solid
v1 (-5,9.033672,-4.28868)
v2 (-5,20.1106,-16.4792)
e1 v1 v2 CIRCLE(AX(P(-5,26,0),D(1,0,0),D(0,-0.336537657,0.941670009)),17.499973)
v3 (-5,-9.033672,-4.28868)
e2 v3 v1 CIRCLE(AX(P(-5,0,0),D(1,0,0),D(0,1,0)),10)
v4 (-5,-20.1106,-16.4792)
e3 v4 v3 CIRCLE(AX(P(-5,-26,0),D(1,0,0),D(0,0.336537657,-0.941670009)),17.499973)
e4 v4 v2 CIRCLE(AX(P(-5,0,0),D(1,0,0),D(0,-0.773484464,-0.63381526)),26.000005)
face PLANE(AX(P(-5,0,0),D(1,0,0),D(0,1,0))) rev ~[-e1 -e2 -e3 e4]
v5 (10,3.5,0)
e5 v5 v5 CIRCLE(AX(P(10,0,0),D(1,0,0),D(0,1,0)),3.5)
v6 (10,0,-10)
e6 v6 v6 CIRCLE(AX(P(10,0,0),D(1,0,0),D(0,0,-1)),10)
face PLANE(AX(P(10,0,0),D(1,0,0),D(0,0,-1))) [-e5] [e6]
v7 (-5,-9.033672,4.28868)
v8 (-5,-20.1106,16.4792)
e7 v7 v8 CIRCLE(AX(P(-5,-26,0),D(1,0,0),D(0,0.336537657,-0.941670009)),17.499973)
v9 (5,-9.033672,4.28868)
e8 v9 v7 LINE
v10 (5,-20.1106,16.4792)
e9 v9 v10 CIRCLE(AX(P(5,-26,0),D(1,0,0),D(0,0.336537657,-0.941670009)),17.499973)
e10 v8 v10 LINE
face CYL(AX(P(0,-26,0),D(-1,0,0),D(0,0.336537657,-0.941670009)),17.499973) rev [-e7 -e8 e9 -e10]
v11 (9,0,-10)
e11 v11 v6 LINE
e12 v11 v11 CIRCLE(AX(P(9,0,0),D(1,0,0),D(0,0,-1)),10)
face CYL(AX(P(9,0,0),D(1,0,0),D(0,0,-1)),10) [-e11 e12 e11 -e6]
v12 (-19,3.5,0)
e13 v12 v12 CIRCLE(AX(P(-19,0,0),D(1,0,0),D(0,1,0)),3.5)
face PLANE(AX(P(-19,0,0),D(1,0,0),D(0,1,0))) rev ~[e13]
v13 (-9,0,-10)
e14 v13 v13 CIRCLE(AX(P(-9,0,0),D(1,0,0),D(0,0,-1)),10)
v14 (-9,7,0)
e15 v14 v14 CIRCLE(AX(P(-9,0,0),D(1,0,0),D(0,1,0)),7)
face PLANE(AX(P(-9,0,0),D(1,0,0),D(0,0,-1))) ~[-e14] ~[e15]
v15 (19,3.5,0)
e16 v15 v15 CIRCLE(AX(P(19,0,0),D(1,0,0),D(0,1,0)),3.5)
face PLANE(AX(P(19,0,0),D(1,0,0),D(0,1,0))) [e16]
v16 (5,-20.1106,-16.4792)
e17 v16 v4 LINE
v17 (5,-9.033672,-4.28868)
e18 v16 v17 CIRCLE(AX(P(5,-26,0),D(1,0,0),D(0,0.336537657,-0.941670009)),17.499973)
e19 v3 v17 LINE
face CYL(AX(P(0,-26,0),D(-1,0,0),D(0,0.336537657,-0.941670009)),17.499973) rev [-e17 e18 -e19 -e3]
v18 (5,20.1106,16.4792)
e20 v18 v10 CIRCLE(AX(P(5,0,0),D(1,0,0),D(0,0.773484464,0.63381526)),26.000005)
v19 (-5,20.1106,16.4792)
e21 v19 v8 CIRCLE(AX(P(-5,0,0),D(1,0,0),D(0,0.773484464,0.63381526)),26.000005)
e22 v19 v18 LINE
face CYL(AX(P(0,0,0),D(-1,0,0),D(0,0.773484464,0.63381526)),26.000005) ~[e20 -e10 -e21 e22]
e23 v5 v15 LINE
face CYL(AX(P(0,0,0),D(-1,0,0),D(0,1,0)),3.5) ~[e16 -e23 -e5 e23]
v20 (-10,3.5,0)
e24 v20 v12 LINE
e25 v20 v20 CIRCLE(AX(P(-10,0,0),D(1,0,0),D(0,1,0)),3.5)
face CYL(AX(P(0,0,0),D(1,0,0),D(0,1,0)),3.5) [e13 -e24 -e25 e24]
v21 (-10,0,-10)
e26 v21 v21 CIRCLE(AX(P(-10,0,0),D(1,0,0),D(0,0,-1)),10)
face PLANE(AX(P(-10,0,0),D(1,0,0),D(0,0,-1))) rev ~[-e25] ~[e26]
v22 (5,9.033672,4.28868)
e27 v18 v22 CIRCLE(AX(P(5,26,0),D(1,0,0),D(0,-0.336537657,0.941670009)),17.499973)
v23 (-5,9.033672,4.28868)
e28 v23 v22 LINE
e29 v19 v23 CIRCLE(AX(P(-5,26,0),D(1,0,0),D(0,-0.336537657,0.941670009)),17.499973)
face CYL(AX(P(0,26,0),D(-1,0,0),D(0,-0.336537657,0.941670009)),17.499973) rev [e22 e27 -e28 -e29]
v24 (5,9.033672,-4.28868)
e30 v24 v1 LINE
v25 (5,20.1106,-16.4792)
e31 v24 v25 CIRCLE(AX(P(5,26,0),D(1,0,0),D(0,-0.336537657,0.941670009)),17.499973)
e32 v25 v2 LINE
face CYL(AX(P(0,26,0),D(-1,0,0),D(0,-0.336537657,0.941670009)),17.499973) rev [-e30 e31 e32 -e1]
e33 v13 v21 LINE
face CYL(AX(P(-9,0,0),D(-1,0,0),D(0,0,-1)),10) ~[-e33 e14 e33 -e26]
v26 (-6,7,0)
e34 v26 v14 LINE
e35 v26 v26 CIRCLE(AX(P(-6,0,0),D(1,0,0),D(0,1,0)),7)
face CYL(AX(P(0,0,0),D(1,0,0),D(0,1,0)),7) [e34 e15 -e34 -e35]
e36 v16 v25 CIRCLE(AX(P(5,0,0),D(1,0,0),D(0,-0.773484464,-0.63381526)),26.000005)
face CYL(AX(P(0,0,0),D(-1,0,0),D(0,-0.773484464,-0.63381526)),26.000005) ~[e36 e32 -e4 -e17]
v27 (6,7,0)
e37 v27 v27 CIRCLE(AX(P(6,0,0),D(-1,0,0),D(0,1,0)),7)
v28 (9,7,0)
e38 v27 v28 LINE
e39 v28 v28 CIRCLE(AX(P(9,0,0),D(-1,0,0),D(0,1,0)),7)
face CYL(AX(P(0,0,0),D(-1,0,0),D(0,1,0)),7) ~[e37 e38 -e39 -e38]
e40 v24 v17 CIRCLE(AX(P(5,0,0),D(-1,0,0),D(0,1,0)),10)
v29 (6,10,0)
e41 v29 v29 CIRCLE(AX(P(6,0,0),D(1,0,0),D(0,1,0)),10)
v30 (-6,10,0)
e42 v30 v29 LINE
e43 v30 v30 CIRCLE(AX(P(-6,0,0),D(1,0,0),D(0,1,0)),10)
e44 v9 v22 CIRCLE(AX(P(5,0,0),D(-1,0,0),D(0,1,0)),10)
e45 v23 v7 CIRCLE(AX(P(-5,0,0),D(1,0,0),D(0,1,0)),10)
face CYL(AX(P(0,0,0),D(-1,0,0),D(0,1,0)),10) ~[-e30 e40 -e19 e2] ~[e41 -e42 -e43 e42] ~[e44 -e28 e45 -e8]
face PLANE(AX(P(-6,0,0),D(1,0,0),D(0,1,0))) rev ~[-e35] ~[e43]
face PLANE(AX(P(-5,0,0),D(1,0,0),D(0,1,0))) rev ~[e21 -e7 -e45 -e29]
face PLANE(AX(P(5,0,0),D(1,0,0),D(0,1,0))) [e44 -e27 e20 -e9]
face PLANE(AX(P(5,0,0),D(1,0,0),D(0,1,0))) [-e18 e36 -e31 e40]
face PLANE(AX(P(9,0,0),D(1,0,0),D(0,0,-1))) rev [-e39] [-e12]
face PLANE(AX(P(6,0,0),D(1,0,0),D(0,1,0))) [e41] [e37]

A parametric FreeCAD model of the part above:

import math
import FreeCAD as App
import Part
import Sketcher

V = App.Vector
Q = App.Units.Quantity


def add_polygon(sketch, points):
    """Adds a closed chain of lines whose ends are joined by coincident constraints."""
    first, n = sketch.GeometryCount, len(points)
    for a, b in zip(points, points[1:] + points[:1]):
        sketch.addGeometry(Part.LineSegment(App.Vector(*a, 0), App.Vector(*b, 0)), False)
    for i in range(n):
        sketch.addConstraint(Sketcher.Constraint("Coincident", first + i, 2, first + (i + 1) % n, 1))

doc = App.newDocument("Part")
params = doc.addObject("Spreadsheet::Sheet", "Params")
for row, (alias, value) in enumerate([
    ("sketch1_diameter", "7 mm"),
    ("pad1_length", "38 mm"),
    ("sketch2_radius", "17.5 mm"),
    ("sketch2_radius2", "26 mm"),
    ("pad2_length", "10 mm"),
    ("sketch3_diameter", "20 mm"),
    ("pad3_length", "12 mm"),
    ("sketch4_diameter", "14 mm"),
    ("sketch4_diameter2", "7 mm"),
    ("pad4_length", "20 mm"),
    ("sketch5_width", "1 mm"),
    ("sketch5_height", "10 mm"),
    ("revolution_angle", "360 deg"),
    ("sketch6_width", "1 mm"),
    ("sketch6_height", "10 mm"),
    ("revolution2_angle", "360 deg"),
], start=1):
    params.set(f"A{row}", alias)
    params.set(f"B{row}", "=" + value)
    params.setAlias(f"B{row}", alias)

body = doc.addObject("PartDesign::Body", "Body")

sketch1 = body.newObject("Sketcher::SketchObject", "Sketch")
sketch1.AttachmentSupport = (doc.getObject("YZ_Plane"), [""])
sketch1.MapMode = "FlatFace"
sketch1.addGeometry(Part.Circle(V(0, 0, 0), V(0, 0, 1), 3.5), False)
sketch1.addConstraint(Sketcher.Constraint("Coincident", 0, 3, -1, 1))
sketch1.addConstraint(Sketcher.Constraint("Diameter", 0, Q("7 mm")))
sketch1.setExpression("Constraints[1]", "Params.sketch1_diameter")
pad1 = body.newObject("PartDesign::Pad", "Pad")
pad1.Profile = sketch1
pad1.setExpression("Length", "Params.pad1_length")
pad1.Midplane = True

sketch2 = body.newObject("Sketcher::SketchObject", "Sketch001")
sketch2.AttachmentSupport = (doc.getObject("YZ_Plane"), [""])
sketch2.MapMode = "FlatFace"
sketch2.addGeometry(Part.ArcOfCircle(Part.Circle(V(26, 0, 0), V(0, 0, 1), 17.499973), math.radians(109.666069), math.radians(250.333931)), False)
sketch2.addGeometry(Part.ArcOfCircle(Part.Circle(V(0, 0, 0), V(0, 0, 1), 26.000005), math.radians(39.33217), math.radians(140.66783)), False)
sketch2.addGeometry(Part.ArcOfCircle(Part.Circle(V(-26, 0, 0), V(0, 0, 1), 17.499973), math.radians(-70.333931), math.radians(70.333931)), False)
sketch2.addGeometry(Part.ArcOfCircle(Part.Circle(V(0, 0, 0), V(0, 0, 1), 26.000005), math.radians(-140.66783), math.radians(-39.33217)), False)
sketch2.addConstraint(Sketcher.Constraint("Coincident", 0, 1, 1, 1))
sketch2.addConstraint(Sketcher.Constraint("Coincident", 1, 2, 2, 2))
sketch2.addConstraint(Sketcher.Constraint("Coincident", 2, 1, 3, 1))
sketch2.addConstraint(Sketcher.Constraint("Coincident", 3, 2, 0, 2))
sketch2.addConstraint(Sketcher.Constraint("Coincident", 1, 3, -1, 1))
sketch2.addConstraint(Sketcher.Constraint("Coincident", 3, 3, -1, 1))
sketch2.addConstraint(Sketcher.Constraint("Equal", 0, 2))
sketch2.addConstraint(Sketcher.Constraint("Equal", 1, 3))
sketch2.addConstraint(Sketcher.Constraint("Symmetric", 0, 3, 2, 3, -1, 1))
sketch2.addConstraint(Sketcher.Constraint("PointOnObject", 0, 3, -1))
sketch2.addConstraint(Sketcher.Constraint("Radius", 0, Q("17.5 mm")))
sketch2.addConstraint(Sketcher.Constraint("Radius", 1, Q("26 mm")))
sketch2.addConstraint(Sketcher.Constraint("DistanceX", -1, 1, 0, 3, Q("26 mm")))
sketch2.setExpression("Constraints[10]", "Params.sketch2_radius")
sketch2.setExpression("Constraints[11]", "Params.sketch2_radius2")
pad2 = body.newObject("PartDesign::Pad", "Pad001")
pad2.Profile = sketch2
pad2.setExpression("Length", "Params.pad2_length")
pad2.Midplane = True

sketch3 = body.newObject("Sketcher::SketchObject", "Sketch002")
sketch3.AttachmentSupport = (doc.getObject("YZ_Plane"), [""])
sketch3.MapMode = "FlatFace"
sketch3.addGeometry(Part.Circle(V(0, 0, 0), V(0, 0, 1), 10), False)
sketch3.addConstraint(Sketcher.Constraint("Coincident", 0, 3, -1, 1))
sketch3.addConstraint(Sketcher.Constraint("Diameter", 0, Q("20 mm")))
sketch3.setExpression("Constraints[1]", "Params.sketch3_diameter")
pad3 = body.newObject("PartDesign::Pad", "Pad002")
pad3.Profile = sketch3
pad3.setExpression("Length", "Params.pad3_length")
pad3.Midplane = True

sketch4 = body.newObject("Sketcher::SketchObject", "Sketch003")
sketch4.AttachmentSupport = (doc.getObject("YZ_Plane"), [""])
sketch4.MapMode = "FlatFace"
sketch4.addGeometry(Part.Circle(V(0, 0, 0), V(0, 0, 1), 7), False)
sketch4.addGeometry(Part.Circle(V(0, 0, 0), V(0, 0, 1), 3.5), False)
sketch4.addConstraint(Sketcher.Constraint("Coincident", 0, 3, -1, 1))
sketch4.addConstraint(Sketcher.Constraint("Coincident", 1, 3, -1, 1))
sketch4.addConstraint(Sketcher.Constraint("Diameter", 0, Q("14 mm")))
sketch4.addConstraint(Sketcher.Constraint("Diameter", 1, Q("7 mm")))
sketch4.setExpression("Constraints[2]", "Params.sketch4_diameter")
sketch4.setExpression("Constraints[3]", "Params.sketch4_diameter2")
pad4 = body.newObject("PartDesign::Pad", "Pad003")
pad4.Profile = sketch4
pad4.setExpression("Length", "Params.pad4_length")
pad4.Midplane = True

sketch5 = body.newObject("Sketcher::SketchObject", "Sketch004")
sketch5.AttachmentSupport = (doc.getObject("XZ_Plane"), [""])
sketch5.MapMode = "FlatFace"
add_polygon(sketch5, [(-10, -10), (-10, 0), (-9, 0), (-9, -10)])
sketch5.addConstraint(Sketcher.Constraint("Vertical", 0))
sketch5.addConstraint(Sketcher.Constraint("Horizontal", 1))
sketch5.addConstraint(Sketcher.Constraint("Vertical", 2))
sketch5.addConstraint(Sketcher.Constraint("Horizontal", 3))
sketch5.addConstraint(Sketcher.Constraint("PointOnObject", 0, 2, -1))
sketch5.addConstraint(Sketcher.Constraint("DistanceX", 1, 1, 1, 2, Q("1 mm")))
sketch5.addConstraint(Sketcher.Constraint("DistanceY", 0, 1, 0, 2, Q("10 mm")))
sketch5.addConstraint(Sketcher.Constraint("DistanceX", 0, 2, -1, 1, Q("10 mm")))
sketch5.setExpression("Constraints[9]", "Params.sketch5_width")
sketch5.setExpression("Constraints[10]", "Params.sketch5_height")
revolution = body.newObject("PartDesign::Revolution", "Revolution")
revolution.Profile = sketch5
revolution.ReferenceAxis = (sketch5, ["H_Axis"])
revolution.setExpression("Angle", "Params.revolution_angle")

sketch6 = body.newObject("Sketcher::SketchObject", "Sketch005")
sketch6.AttachmentSupport = (doc.getObject("XZ_Plane"), [""])
sketch6.MapMode = "FlatFace"
add_polygon(sketch6, [(9, 0), (10, 0), (10, -10), (9, -10)])
sketch6.addConstraint(Sketcher.Constraint("Horizontal", 0))
sketch6.addConstraint(Sketcher.Constraint("Vertical", 1))
sketch6.addConstraint(Sketcher.Constraint("Horizontal", 2))
sketch6.addConstraint(Sketcher.Constraint("Vertical", 3))
sketch6.addConstraint(Sketcher.Constraint("PointOnObject", 0, 2, -1))
sketch6.addConstraint(Sketcher.Constraint("DistanceX", 0, 1, 0, 2, Q("1 mm")))
sketch6.addConstraint(Sketcher.Constraint("DistanceY", 1, 2, 1, 1, Q("10 mm")))
sketch6.addConstraint(Sketcher.Constraint("DistanceX", -1, 1, 0, 2, Q("10 mm")))
sketch6.setExpression("Constraints[9]", "Params.sketch6_width")
sketch6.setExpression("Constraints[10]", "Params.sketch6_height")
revolution2 = body.newObject("PartDesign::Revolution", "Revolution001")
revolution2.Profile = sketch6
revolution2.ReferenceAxis = (sketch6, ["H_Axis"])
revolution2.setExpression("Angle", "Params.revolution2_angle")

doc.recompute()
